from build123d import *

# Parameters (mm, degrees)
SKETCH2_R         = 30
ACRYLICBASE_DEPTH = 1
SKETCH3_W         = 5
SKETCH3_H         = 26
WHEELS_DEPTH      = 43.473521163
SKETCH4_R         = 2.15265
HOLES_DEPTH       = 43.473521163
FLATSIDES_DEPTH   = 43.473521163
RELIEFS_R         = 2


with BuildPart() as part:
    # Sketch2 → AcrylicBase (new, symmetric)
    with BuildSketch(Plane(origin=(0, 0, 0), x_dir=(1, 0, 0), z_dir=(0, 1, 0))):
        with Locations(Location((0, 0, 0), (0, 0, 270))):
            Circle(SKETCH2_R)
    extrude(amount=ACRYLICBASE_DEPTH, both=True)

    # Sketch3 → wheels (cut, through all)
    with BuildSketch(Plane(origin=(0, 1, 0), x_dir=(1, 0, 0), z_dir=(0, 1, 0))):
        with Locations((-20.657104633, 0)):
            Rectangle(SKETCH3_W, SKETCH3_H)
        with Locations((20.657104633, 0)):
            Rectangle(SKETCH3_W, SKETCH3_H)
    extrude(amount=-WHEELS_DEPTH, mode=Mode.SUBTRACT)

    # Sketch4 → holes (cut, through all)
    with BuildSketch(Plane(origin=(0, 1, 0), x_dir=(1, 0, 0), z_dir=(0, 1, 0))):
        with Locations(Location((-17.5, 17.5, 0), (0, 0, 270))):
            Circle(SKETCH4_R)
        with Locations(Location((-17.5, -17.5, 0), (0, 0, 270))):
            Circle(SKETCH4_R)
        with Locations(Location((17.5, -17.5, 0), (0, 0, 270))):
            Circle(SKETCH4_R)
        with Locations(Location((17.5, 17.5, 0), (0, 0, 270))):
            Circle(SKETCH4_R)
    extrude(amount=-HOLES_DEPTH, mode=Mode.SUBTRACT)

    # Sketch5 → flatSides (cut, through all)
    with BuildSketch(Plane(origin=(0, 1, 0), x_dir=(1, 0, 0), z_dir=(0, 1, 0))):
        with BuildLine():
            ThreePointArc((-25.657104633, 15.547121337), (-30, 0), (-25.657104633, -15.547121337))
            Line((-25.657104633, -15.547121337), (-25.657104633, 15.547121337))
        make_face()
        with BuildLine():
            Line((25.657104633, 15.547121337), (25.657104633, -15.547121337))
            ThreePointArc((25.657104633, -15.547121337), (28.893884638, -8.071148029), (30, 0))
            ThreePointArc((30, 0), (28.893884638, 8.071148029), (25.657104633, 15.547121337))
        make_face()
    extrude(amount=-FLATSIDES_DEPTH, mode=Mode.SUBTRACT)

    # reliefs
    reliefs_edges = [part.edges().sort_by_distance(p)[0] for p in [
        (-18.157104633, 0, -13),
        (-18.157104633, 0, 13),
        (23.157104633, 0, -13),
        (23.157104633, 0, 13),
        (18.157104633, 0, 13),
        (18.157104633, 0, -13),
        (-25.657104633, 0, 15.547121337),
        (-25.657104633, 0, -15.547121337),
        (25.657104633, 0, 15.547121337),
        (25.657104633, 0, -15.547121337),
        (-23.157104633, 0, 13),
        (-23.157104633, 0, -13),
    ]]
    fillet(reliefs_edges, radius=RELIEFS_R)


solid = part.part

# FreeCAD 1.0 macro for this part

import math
import FreeCAD as App
import Part
import Sketcher
from FreeCAD import Vector
Q = App.Units.Quantity


def edges_at(feature, points):
    """Names of the edges that pass closest to the given points."""
    edges = feature.Shape.Edges
    near = lambda p: min(range(len(edges)), key=lambda i: edges[i].distToShape(Part.Vertex(*p))[0])
    return sorted({f"Edge{near(p) + 1}" for p in points})

doc = App.newDocument("Part")
params = doc.addObject("Spreadsheet::Sheet", "Params")
for row, (alias, value) in enumerate([
    ("sketch1_diameter", "60 mm"),
    ("pad1_length", "2 mm"),
    ("sketch2_width", "5 mm"),
    ("sketch2_height", "26 mm"),
    ("sketch4_radius", "30 mm"),
    ("fillet_radius", "2 mm"),
], start=1):
    params.set(f"A{row}", alias)
    params.set(f"B{row}", "=" + value)
    params.setAlias(f"B{row}", alias)

body = doc.addObject("PartDesign::Body", "Body")

sketch1 = doc.addObject("Sketcher::SketchObject", "Sketch")
body.addObject(sketch1)
sketch1.AttachmentSupport = (doc.XZ_Plane, [""])
sketch1.MapMode = "FlatFace"
sketch1.addGeometry(Part.Circle(Vector(0, 0, 0), Vector(0, 0, 1), 30), False)
sketch1.addConstraint(Sketcher.Constraint("Coincident", 0, 3, -1, 1))
sketch1.addConstraint(Sketcher.Constraint("Diameter", 0, Q("60 mm")))
sketch1.setExpression("Constraints[1]", "Params.sketch1_diameter")
pad1 = doc.addObject("PartDesign::Pad", "Pad")
body.addObject(pad1)
pad1.Profile = sketch1
pad1.setExpression("Length", "Params.pad1_length")
pad1.Midplane = True

sketch2 = doc.addObject("Sketcher::SketchObject", "Sketch001")
body.addObject(sketch2)
sketch2.AttachmentSupport = (doc.XZ_Plane, [""])
sketch2.MapMode = "FlatFace"
sketch2.AttachmentOffset = App.Placement(Vector(0, 0, -1), App.Rotation())
sketch2.addGeometry(Part.LineSegment(Vector(-23, -13, 0), Vector(-23, 13, 0)), False)
sketch2.addGeometry(Part.LineSegment(Vector(-23, 13, 0), Vector(-18, 13, 0)), False)
sketch2.addGeometry(Part.LineSegment(Vector(-18, 13, 0), Vector(-18, -13, 0)), False)
sketch2.addGeometry(Part.LineSegment(Vector(-18, -13, 0), Vector(-23, -13, 0)), False)
sketch2.addGeometry(Part.LineSegment(Vector(18, -13, 0), Vector(18, 13, 0)), False)
sketch2.addGeometry(Part.LineSegment(Vector(18, 13, 0), Vector(23, 13, 0)), False)
sketch2.addGeometry(Part.LineSegment(Vector(23, 13, 0), Vector(23, -13, 0)), False)
sketch2.addGeometry(Part.LineSegment(Vector(23, -13, 0), Vector(18, -13, 0)), False)
sketch2.addConstraint(Sketcher.Constraint("Coincident", 0, 2, 1, 1))
sketch2.addConstraint(Sketcher.Constraint("Coincident", 1, 2, 2, 1))
sketch2.addConstraint(Sketcher.Constraint("Coincident", 2, 2, 3, 1))
sketch2.addConstraint(Sketcher.Constraint("Coincident", 3, 2, 0, 1))
sketch2.addConstraint(Sketcher.Constraint("Coincident", 4, 2, 5, 1))
sketch2.addConstraint(Sketcher.Constraint("Coincident", 5, 2, 6, 1))
sketch2.addConstraint(Sketcher.Constraint("Coincident", 6, 2, 7, 1))
sketch2.addConstraint(Sketcher.Constraint("Coincident", 7, 2, 4, 1))
sketch2.addConstraint(Sketcher.Constraint("Vertical", 0))
sketch2.addConstraint(Sketcher.Constraint("Horizontal", 1))
sketch2.addConstraint(Sketcher.Constraint("Vertical", 2))
sketch2.addConstraint(Sketcher.Constraint("Horizontal", 3))
sketch2.addConstraint(Sketcher.Constraint("Vertical", 4))
sketch2.addConstraint(Sketcher.Constraint("Horizontal", 5))
sketch2.addConstraint(Sketcher.Constraint("Vertical", 6))
sketch2.addConstraint(Sketcher.Constraint("Horizontal", 7))
sketch2.addConstraint(Sketcher.Constraint("Symmetric", 2, 2, 4, 2, -1, 1))
sketch2.addConstraint(Sketcher.Constraint("Symmetric", 0, 2, 6, 2, -1, 1))
sketch2.addConstraint(Sketcher.Constraint("Horizontal", 1, 2, 4, 2))
sketch2.addConstraint(Sketcher.Constraint("DistanceX", 1, 1, 1, 2, Q("5 mm")))
sketch2.addConstraint(Sketcher.Constraint("DistanceY", 0, 1, 0, 2, Q("26 mm")))
sketch2.addConstraint(Sketcher.Constraint("DistanceX", 1, 2, 4, 2, Q("36.314209 mm")))
sketch2.setExpression("Constraints[19]", "Params.sketch2_width")
sketch2.setExpression("Constraints[20]", "Params.sketch2_height")
pocket1 = doc.addObject("PartDesign::Pocket", "Pocket")
body.addObject(pocket1)
pocket1.Profile = sketch2
pocket1.Type = "ThroughAll"
pocket1.Reversed = True

sketch3 = doc.addObject("Sketcher::SketchObject", "Sketch002")
body.addObject(sketch3)
sketch3.AttachmentSupport = (doc.XZ_Plane, [""])
sketch3.MapMode = "FlatFace"
sketch3.AttachmentOffset = App.Placement(Vector(0, 0, -1), App.Rotation())
sketch3.addGeometry(Part.Circle(Vector(-17.5, -17.5, 0), Vector(0, 0, 1), 2.2), False)
sketch3.addGeometry(Part.Circle(Vector(-17.5, 17.5, 0), Vector(0, 0, 1), 2.2), False)
sketch3.addGeometry(Part.Circle(Vector(17.5, 17.5, 0), Vector(0, 0, 1), 2.2), False)
sketch3.addGeometry(Part.Circle(Vector(17.5, -17.5, 0), Vector(0, 0, 1), 2.2), False)
sketch3.addConstraint(Sketcher.Constraint("Equal", 0, 1))
sketch3.addConstraint(Sketcher.Constraint("Equal", 1, 2))
sketch3.addConstraint(Sketcher.Constraint("Equal", 2, 3))
sketch3.addConstraint(Sketcher.Constraint("Symmetric", 0, 3, 2, 3, -1, 1))
sketch3.addConstraint(Sketcher.Constraint("Symmetric", 1, 3, 3, 3, -1, 1))
sketch3.addConstraint(Sketcher.Constraint("Symmetric", 1, 3, 2, 3, -2))
sketch3.addConstraint(Sketcher.Constraint("DistanceY", 0, 3, 1, 3, Q("35 mm")))
sketch3.addConstraint(Sketcher.Constraint("DistanceX", 1, 3, 2, 3, Q("35 mm")))
sketch3.addConstraint(Sketcher.Constraint("Diameter", 0, Q("4.3053 mm")))
pocket2 = doc.addObject("PartDesign::Pocket", "Pocket001")
body.addObject(pocket2)
pocket2.Profile = sketch3
pocket2.Type = "ThroughAll"
pocket2.Reversed = True

sketch4 = doc.addObject("Sketcher::SketchObject", "Sketch003")
body.addObject(sketch4)
sketch4.AttachmentSupport = (doc.XZ_Plane, [""])
sketch4.MapMode = "FlatFace"
sketch4.AttachmentOffset = App.Placement(Vector(0, 0, -1), App.Rotation())
sketch4.addGeometry(Part.ArcOfCircle(Part.Circle(Vector(0, 0, 0), Vector(0, 0, 1), 30), math.radians(149), math.radians(211)), False)
sketch4.addGeometry(Part.LineSegment(Vector(-26, 16, 0), Vector(-26, -16, 0)), False)
sketch4.addGeometry(Part.LineSegment(Vector(26, -16, 0), Vector(26, 16, 0)), False)
sketch4.addGeometry(Part.ArcOfCircle(Part.Circle(Vector(0, 0, 0), Vector(0, 0, 1), 30), math.radians(0), math.radians(31)), False)
sketch4.addGeometry(Part.ArcOfCircle(Part.Circle(Vector(0, 0, 0), Vector(0, 0, 1), 30), math.radians(-31), math.radians(0)), False)
sketch4.addConstraint(Sketcher.Constraint("Coincident", 0, 1, 1, 1))
sketch4.addConstraint(Sketcher.Constraint("Coincident", 1, 2, 0, 2))
sketch4.addConstraint(Sketcher.Constraint("Coincident", 2, 2, 3, 2))
sketch4.addConstraint(Sketcher.Constraint("Tangent", 3, 1, 4, 2))
sketch4.addConstraint(Sketcher.Constraint("Coincident", 4, 1, 2, 1))
sketch4.addConstraint(Sketcher.Constraint("Vertical", 1))
sketch4.addConstraint(Sketcher.Constraint("Vertical", 2))
sketch4.addConstraint(Sketcher.Constraint("Coincident", 0, 3, -1, 1))
sketch4.addConstraint(Sketcher.Constraint("Coincident", 3, 3, -1, 1))
sketch4.addConstraint(Sketcher.Constraint("Equal", 0, 3))
sketch4.addConstraint(Sketcher.Constraint("Equal", 3, 4))
sketch4.addConstraint(Sketcher.Constraint("PointOnObject", 3, 1, -1))
sketch4.addConstraint(Sketcher.Constraint("Horizontal", 0, 1, 2, 2))
sketch4.addConstraint(Sketcher.Constraint("Radius", 0, Q("30 mm")))
sketch4.addConstraint(Sketcher.Constraint("DistanceY", 1, 2, 1, 1, Q("31.094243 mm")))
sketch4.setExpression("Constraints[13]", "Params.sketch4_radius")
pocket3 = doc.addObject("PartDesign::Pocket", "Pocket002")
body.addObject(pocket3)
pocket3.Profile = sketch4
pocket3.Type = "ThroughAll"
pocket3.Reversed = True
doc.recompute()

fillet = doc.addObject("PartDesign::Fillet", "Fillet")
body.addObject(fillet)
fillet.Base = (pocket3, edges_at(pocket3, [
    (-18.157, 0, -13),
    (-18.157, 0, 13),
    (23.157, 0, -13),
    (23.157, 0, 13),
    (18.157, 0, 13),
    (18.157, 0, -13),
    (-25.657, 0, 15.547),
    (-25.657, 0, -15.547),
    (25.657, 0, 15.547),
    (25.657, 0, -15.547),
    (-23.157, 0, 13),
    (-23.157, 0, -13),
]))
fillet.setExpression("Radius", "Params.fillet_radius")

doc.recompute()
